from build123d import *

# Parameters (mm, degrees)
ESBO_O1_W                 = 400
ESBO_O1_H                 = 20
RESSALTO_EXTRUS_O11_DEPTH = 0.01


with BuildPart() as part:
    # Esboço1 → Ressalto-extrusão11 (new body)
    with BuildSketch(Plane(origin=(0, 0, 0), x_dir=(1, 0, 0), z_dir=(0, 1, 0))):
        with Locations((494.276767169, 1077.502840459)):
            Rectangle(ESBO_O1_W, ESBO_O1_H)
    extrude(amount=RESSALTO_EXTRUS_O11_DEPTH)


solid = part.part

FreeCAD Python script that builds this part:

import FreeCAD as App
import Part
import Sketcher

V = App.Vector


def add_polygon(sketch, points):
    """Adds a closed chain of lines whose ends are joined by coincident constraints."""
    first, n = sketch.GeometryCount, len(points)
    for a, b in zip(points, points[1:] + points[:1]):
        sketch.addGeometry(Part.LineSegment(App.Vector(*a, 0), App.Vector(*b, 0)), False)
    for i in range(n):
        sketch.addConstraint(Sketcher.Constraint("Coincident", first + i, 2, first + (i + 1) % n, 1))

doc = App.newDocument("Part")
body = doc.addObject("PartDesign::Body", "Body")

# Sketch on XZ plane
sketch1 = body.newObject("Sketcher::SketchObject", "Sketch")
sketch1.AttachmentSupport = (doc.getObject("XZ_Plane"), [""])
sketch1.MapMode = "FlatFace"
add_polygon(sketch1, [(294, -1088), (294, -1068), (694, -1068), (694, -1088)])  # lines 0-3
sketch1.addConstraint(Sketcher.Constraint("Vertical", 0))
sketch1.addConstraint(Sketcher.Constraint("Horizontal", 1))
sketch1.addConstraint(Sketcher.Constraint("Vertical", 2))
sketch1.addConstraint(Sketcher.Constraint("Horizontal", 3))
sketch1.addConstraint(Sketcher.Constraint("DistanceX", 1, 1, 1, 2, 400.0))
sketch1.addConstraint(Sketcher.Constraint("DistanceY", 0, 1, 0, 2, 20.0))
sketch1.addConstraint(Sketcher.Constraint("DistanceY", 0, 2, -1, 1, 1067.50284))
sketch1.addConstraint(Sketcher.Constraint("DistanceX", -1, 1, 0, 2, 294.276767))
pad1 = body.newObject("PartDesign::Pad", "Pad")
pad1.Profile = sketch1
pad1.Length = 0.01
pad1.Reversed = True

doc.recompute()
